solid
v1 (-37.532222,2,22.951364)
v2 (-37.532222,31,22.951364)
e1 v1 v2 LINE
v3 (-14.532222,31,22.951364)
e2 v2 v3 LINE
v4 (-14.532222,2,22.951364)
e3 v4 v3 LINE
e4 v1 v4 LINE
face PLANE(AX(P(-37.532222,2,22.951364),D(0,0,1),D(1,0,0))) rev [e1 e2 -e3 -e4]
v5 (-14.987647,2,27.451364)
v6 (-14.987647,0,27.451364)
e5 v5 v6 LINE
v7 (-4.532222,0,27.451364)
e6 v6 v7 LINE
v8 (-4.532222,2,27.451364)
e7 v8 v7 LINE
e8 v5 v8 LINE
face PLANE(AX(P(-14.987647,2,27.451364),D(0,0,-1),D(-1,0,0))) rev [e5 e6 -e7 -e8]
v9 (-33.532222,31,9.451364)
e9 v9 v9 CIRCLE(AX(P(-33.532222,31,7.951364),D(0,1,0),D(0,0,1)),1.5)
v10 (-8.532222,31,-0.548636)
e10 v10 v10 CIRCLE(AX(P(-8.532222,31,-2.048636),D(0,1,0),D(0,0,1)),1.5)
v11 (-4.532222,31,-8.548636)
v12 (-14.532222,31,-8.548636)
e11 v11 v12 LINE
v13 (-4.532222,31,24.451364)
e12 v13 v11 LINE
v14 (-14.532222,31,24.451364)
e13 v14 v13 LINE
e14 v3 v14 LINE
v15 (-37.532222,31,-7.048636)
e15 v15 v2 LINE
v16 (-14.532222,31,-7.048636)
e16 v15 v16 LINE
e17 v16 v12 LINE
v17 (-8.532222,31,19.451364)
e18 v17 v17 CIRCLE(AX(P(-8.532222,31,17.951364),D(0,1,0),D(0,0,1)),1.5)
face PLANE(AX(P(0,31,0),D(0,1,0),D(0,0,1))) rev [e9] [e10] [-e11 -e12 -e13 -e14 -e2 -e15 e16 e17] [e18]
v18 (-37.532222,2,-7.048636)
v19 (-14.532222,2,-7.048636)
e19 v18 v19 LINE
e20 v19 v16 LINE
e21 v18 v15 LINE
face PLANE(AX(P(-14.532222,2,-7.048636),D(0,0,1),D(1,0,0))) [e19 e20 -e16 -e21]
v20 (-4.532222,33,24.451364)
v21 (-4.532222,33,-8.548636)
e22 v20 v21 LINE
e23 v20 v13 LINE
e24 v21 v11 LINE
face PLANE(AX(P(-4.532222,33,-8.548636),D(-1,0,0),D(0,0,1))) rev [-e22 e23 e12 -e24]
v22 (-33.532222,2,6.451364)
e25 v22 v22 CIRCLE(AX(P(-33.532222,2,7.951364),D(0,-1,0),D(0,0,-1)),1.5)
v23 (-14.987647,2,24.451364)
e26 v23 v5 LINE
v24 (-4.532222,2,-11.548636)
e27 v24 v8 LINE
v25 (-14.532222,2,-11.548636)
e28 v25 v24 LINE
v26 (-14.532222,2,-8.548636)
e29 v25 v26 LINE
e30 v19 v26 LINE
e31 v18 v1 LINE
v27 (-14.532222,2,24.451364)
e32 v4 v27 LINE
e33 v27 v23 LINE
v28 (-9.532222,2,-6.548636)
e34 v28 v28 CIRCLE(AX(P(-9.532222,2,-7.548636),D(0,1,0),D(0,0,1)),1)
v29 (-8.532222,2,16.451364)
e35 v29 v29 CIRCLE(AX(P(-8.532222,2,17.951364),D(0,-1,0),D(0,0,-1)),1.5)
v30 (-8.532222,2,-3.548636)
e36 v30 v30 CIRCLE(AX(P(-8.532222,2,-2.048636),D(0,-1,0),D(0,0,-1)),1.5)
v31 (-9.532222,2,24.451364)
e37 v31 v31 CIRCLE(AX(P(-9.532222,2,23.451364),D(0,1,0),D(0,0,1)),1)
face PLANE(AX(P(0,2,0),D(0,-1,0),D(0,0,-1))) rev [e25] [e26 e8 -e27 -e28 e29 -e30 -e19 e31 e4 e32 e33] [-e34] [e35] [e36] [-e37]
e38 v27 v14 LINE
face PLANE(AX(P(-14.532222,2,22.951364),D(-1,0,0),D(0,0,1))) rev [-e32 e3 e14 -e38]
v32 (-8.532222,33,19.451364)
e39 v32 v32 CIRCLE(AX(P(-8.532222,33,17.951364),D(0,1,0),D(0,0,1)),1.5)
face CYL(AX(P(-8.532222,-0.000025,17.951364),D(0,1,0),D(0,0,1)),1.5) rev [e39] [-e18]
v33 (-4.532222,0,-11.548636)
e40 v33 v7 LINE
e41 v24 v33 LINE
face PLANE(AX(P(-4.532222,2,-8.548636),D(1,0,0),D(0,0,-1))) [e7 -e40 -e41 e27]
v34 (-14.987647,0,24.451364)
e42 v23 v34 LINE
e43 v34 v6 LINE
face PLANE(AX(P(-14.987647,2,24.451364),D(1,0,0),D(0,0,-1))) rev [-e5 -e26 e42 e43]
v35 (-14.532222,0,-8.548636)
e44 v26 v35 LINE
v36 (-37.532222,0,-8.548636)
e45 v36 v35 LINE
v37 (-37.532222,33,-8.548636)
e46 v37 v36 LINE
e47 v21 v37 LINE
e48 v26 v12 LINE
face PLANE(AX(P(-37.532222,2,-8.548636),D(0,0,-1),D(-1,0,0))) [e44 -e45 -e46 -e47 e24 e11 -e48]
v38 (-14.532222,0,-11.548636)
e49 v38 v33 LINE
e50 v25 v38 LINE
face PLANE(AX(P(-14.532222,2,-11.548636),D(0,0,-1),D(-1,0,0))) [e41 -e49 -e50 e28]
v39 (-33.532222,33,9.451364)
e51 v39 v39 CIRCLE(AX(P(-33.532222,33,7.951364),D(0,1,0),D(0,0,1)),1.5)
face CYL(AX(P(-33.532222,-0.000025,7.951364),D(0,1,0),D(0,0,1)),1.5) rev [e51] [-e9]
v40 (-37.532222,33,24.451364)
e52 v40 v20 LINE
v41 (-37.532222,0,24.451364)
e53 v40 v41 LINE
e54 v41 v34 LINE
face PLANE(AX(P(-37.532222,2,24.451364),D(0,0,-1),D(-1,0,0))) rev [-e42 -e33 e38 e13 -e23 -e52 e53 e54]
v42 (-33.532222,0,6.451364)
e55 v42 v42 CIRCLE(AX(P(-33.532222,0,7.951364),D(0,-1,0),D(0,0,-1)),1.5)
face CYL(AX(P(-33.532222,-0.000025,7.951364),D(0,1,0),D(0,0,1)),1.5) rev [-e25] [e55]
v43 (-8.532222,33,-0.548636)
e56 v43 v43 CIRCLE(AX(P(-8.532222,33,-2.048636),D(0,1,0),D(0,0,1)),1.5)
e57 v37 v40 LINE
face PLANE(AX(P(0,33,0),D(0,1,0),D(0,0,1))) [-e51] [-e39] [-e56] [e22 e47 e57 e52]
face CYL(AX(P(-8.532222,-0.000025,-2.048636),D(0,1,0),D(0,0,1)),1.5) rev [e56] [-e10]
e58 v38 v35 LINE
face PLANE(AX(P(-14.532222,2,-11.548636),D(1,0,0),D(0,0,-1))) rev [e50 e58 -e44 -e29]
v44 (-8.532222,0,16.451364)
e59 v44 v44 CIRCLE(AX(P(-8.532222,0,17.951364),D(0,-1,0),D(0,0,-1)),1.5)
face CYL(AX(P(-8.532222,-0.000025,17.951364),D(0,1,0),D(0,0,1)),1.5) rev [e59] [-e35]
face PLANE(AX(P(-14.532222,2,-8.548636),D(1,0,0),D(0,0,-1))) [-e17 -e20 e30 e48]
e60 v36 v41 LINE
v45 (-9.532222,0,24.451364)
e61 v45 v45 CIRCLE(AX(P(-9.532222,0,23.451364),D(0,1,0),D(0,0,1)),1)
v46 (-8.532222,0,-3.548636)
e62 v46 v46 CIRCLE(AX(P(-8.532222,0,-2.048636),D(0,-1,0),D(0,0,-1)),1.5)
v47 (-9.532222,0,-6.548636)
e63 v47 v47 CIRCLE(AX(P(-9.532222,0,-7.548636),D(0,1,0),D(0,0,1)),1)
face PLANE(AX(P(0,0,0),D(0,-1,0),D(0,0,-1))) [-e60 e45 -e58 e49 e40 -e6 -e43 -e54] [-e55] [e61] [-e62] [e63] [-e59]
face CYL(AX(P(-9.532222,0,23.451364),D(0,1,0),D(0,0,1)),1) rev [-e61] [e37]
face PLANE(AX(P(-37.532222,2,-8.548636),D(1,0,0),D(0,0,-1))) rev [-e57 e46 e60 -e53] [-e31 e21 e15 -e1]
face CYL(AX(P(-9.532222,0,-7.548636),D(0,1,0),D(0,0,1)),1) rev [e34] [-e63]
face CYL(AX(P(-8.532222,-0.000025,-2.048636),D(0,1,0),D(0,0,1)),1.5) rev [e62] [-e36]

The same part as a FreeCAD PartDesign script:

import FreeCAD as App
import Part
import Sketcher

V = App.Vector

doc = App.newDocument("Part")
body = doc.addObject("PartDesign::Body", "Body")

# Sketch on XZ plane
sketch1 = body.newObject("Sketcher::SketchObject", "Sketch")
sketch1.AttachmentSupport = (doc.getObject("XZ_Plane"), [""])
sketch1.MapMode = "FlatFace"
sketch1.addGeometry(Part.LineSegment(V(-37.5, 24.5, 0), V(-15, 24.5, 0)), False)
sketch1.addGeometry(Part.LineSegment(V(-15, 24.5, 0), V(-15, 27.5, 0)), False)
sketch1.addGeometry(Part.LineSegment(V(-15, 27.5, 0), V(-4.5, 27.5, 0)), False)
sketch1.addGeometry(Part.LineSegment(V(-4.5, 27.5, 0), V(-4.5, -11.5, 0)), False)
sketch1.addGeometry(Part.LineSegment(V(-4.5, -11.5, 0), V(-14.5, -11.5, 0)), False)
sketch1.addGeometry(Part.LineSegment(V(-14.5, -11.5, 0), V(-14.5, -8.5, 0)), False)
sketch1.addGeometry(Part.LineSegment(V(-14.5, -8.5, 0), V(-37.5, -8.5, 0)), False)
sketch1.addGeometry(Part.LineSegment(V(-37.5, -8.5, 0), V(-37.5, 24.5, 0)), False)
sketch1.addConstraint(Sketcher.Constraint("Coincident", 0, 2, 1, 1))
sketch1.addConstraint(Sketcher.Constraint("Coincident", 1, 2, 2, 1))
sketch1.addConstraint(Sketcher.Constraint("Coincident", 2, 2, 3, 1))
sketch1.addConstraint(Sketcher.Constraint("Coincident", 3, 2, 4, 1))
sketch1.addConstraint(Sketcher.Constraint("Coincident", 4, 2, 5, 1))
sketch1.addConstraint(Sketcher.Constraint("Coincident", 5, 2, 6, 1))
sketch1.addConstraint(Sketcher.Constraint("Coincident", 6, 2, 7, 1))
sketch1.addConstraint(Sketcher.Constraint("Coincident", 7, 2, 0, 1))
sketch1.addConstraint(Sketcher.Constraint("Horizontal", 0))
sketch1.addConstraint(Sketcher.Constraint("Vertical", 1))
sketch1.addConstraint(Sketcher.Constraint("Horizontal", 2))
sketch1.addConstraint(Sketcher.Constraint("Vertical", 3))
sketch1.addConstraint(Sketcher.Constraint("Horizontal", 4))
sketch1.addConstraint(Sketcher.Constraint("Vertical", 5))
sketch1.addConstraint(Sketcher.Constraint("Horizontal", 6))
sketch1.addConstraint(Sketcher.Constraint("Vertical", 7))
sketch1.addConstraint(Sketcher.Constraint("Equal", 1, 5))
sketch1.addConstraint(Sketcher.Constraint("DistanceX", 4, 2, 4, 1, 10.0))
sketch1.addConstraint(Sketcher.Constraint("DistanceX", 6, 2, 6, 1, 23.0))
sketch1.addConstraint(Sketcher.Constraint("DistanceY", 1, 1, 1, 2, 3.0))
sketch1.addConstraint(Sketcher.Constraint("DistanceY", 3, 2, 3, 1, 39.0))
sketch1.addConstraint(Sketcher.Constraint("DistanceX", 0, 1, 0, 2, 22.544575))
sketch1.addConstraint(Sketcher.Constraint("DistanceX", 2, 2, -1, 1, 4.532222))
sketch1.addConstraint(Sketcher.Constraint("DistanceY", -1, 1, 0, 2, 24.451364))
pad1 = body.newObject("PartDesign::Pad", "Pad")
pad1.Profile = sketch1
pad1.Length = 2
pad1.Reversed = True

# Sketch on XZ plane
sketch2 = body.newObject("Sketcher::SketchObject", "Sketch001")
sketch2.AttachmentSupport = (doc.getObject("XZ_Plane"), [""])
sketch2.MapMode = "FlatFace"
sketch2.AttachmentOffset = App.Placement(V(0, 0, -2), App.Rotation())
sketch2.addGeometry(Part.Circle(V(-9.5, -7.5, 0), V(0, 0, 1), 1), False)
sketch2.addGeometry(Part.Circle(V(-9.5, 23.5, 0), V(0, 0, 1), 1), False)
sketch2.addConstraint(Sketcher.Constraint("Equal", 0, 1))
sketch2.addConstraint(Sketcher.Constraint("Vertical", 0, 3, 1, 3))
sketch2.addConstraint(Sketcher.Constraint("Diameter", 0, 2.0))
sketch2.addConstraint(Sketcher.Constraint("DistanceY", 0, 3, 1, 3, 31.0))
sketch2.addConstraint(Sketcher.Constraint("DistanceX", 0, 3, -1, 1, 9.532222))
sketch2.addConstraint(Sketcher.Constraint("DistanceY", 0, 3, -1, 1, 7.548636))
pocket1 = body.newObject("PartDesign::Pocket", "Pocket")
pocket1.Profile = sketch2
pocket1.Type = "ThroughAll"
pocket1.Reversed = True

# Sketch on XZ plane
sketch3 = body.newObject("Sketcher::SketchObject", "Sketch002")
sketch3.AttachmentSupport = (doc.getObject("XZ_Plane"), [""])
sketch3.MapMode = "FlatFace"
sketch3.AttachmentOffset = App.Placement(V(0, 0, -2), App.Rotation())
sketch3.addGeometry(Part.LineSegment(V(-37.5, 24.5, 0), V(-37.5, 23, 0)), False)
sketch3.addGeometry(Part.LineSegment(V(-37.5, 23, 0), V(-14.5, 23, 0)), False)
sketch3.addGeometry(Part.LineSegment(V(-14.5, 23, 0), V(-14.5, 24.5, 0)), False)
sketch3.addGeometry(Part.LineSegment(V(-14.5, 24.5, 0), V(-37.5, 24.5, 0)), False)
sketch3.addGeometry(Part.LineSegment(V(-14.5, -8.5, 0), V(-14.5, -7, 0)), False)
sketch3.addGeometry(Part.LineSegment(V(-14.5, -7, 0), V(-37.5, -7, 0)), False)
sketch3.addGeometry(Part.LineSegment(V(-37.5, -7, 0), V(-37.5, -8.5, 0)), False)
sketch3.addGeometry(Part.LineSegment(V(-37.5, -8.5, 0), V(-14.5, -8.5, 0)), False)
sketch3.addConstraint(Sketcher.Constraint("Coincident", 0, 2, 1, 1))
sketch3.addConstraint(Sketcher.Constraint("Coincident", 1, 2, 2, 1))
sketch3.addConstraint(Sketcher.Constraint("Coincident", 2, 2, 3, 1))
sketch3.addConstraint(Sketcher.Constraint("Coincident", 3, 2, 0, 1))
sketch3.addConstraint(Sketcher.Constraint("Coincident", 4, 2, 5, 1))
sketch3.addConstraint(Sketcher.Constraint("Coincident", 5, 2, 6, 1))
sketch3.addConstraint(Sketcher.Constraint("Coincident", 6, 2, 7, 1))
sketch3.addConstraint(Sketcher.Constraint("Coincident", 7, 2, 4, 1))
sketch3.addConstraint(Sketcher.Constraint("Vertical", 0))
sketch3.addConstraint(Sketcher.Constraint("Horizontal", 1))
sketch3.addConstraint(Sketcher.Constraint("Vertical", 2))
sketch3.addConstraint(Sketcher.Constraint("Horizontal", 3))
sketch3.addConstraint(Sketcher.Constraint("Vertical", 4))
sketch3.addConstraint(Sketcher.Constraint("Horizontal", 5))
sketch3.addConstraint(Sketcher.Constraint("Vertical", 6))
sketch3.addConstraint(Sketcher.Constraint("Horizontal", 7))
sketch3.addConstraint(Sketcher.Constraint("Vertical", 2, 2, 4, 2))
sketch3.addConstraint(Sketcher.Constraint("Vertical", 3, 2, 5, 2))
sketch3.addConstraint(Sketcher.Constraint("Equal", 2, 4))
sketch3.addConstraint(Sketcher.Constraint("DistanceX", 1, 1, 1, 2, 23.0))
sketch3.addConstraint(Sketcher.Constraint("DistanceY", 0, 2, 0, 1, 1.5))
sketch3.addConstraint(Sketcher.Constraint("DistanceY", 4, 2, 1, 2, 30.0))
sketch3.addConstraint(Sketcher.Constraint("DistanceX", 0, 2, -1, 1, 37.532222))
sketch3.addConstraint(Sketcher.Constraint("DistanceY", -1, 1, 0, 2, 22.951364))
pad2 = body.newObject("PartDesign::Pad", "Pad001")
pad2.Profile = sketch3
pad2.Length = 29
pad2.Reversed = True

# Sketch on XZ plane
sketch4 = body.newObject("Sketcher::SketchObject", "Sketch003")
sketch4.AttachmentSupport = (doc.getObject("XZ_Plane"), [""])
sketch4.MapMode = "FlatFace"
sketch4.AttachmentOffset = App.Placement(V(0, 0, -31), App.Rotation())
sketch4.addGeometry(Part.LineSegment(V(-38, -9, 0), V(-38, 24, 0)), False)
sketch4.addGeometry(Part.LineSegment(V(-38, 24, 0), V(-5, 24, 0)), False)
sketch4.addGeometry(Part.LineSegment(V(-5, 24, 0), V(-5, -9, 0)), False)
sketch4.addGeometry(Part.LineSegment(V(-5, -9, 0), V(-38, -9, 0)), False)
sketch4.addConstraint(Sketcher.Constraint("Coincident", 0, 2, 1, 1))
sketch4.addConstraint(Sketcher.Constraint("Coincident", 1, 2, 2, 1))
sketch4.addConstraint(Sketcher.Constraint("Coincident", 2, 2, 3, 1))
sketch4.addConstraint(Sketcher.Constraint("Coincident", 3, 2, 0, 1))
sketch4.addConstraint(Sketcher.Constraint("Vertical", 0))
sketch4.addConstraint(Sketcher.Constraint("Horizontal", 1))
sketch4.addConstraint(Sketcher.Constraint("Vertical", 2))
sketch4.addConstraint(Sketcher.Constraint("Horizontal", 3))
sketch4.addConstraint(Sketcher.Constraint("Equal", 3, 0))
sketch4.addConstraint(Sketcher.Constraint("DistanceX", 1, 1, 1, 2, 33.0))
sketch4.addConstraint(Sketcher.Constraint("DistanceX", 0, 2, -1, 1, 37.532222))
sketch4.addConstraint(Sketcher.Constraint("DistanceY", -1, 1, 0, 2, 24.451364))
pad3 = body.newObject("PartDesign::Pad", "Pad002")
pad3.Profile = sketch4
pad3.Length = 2
pad3.Reversed = True

# Sketch on XZ plane
sketch5 = body.newObject("Sketcher::SketchObject", "Sketch004")
sketch5.AttachmentSupport = (doc.getObject("XZ_Plane"), [""])
sketch5.MapMode = "FlatFace"
sketch5.AttachmentOffset = App.Placement(V(0, 0, -33), App.Rotation())
sketch5.addGeometry(Part.Circle(V(-8.5, 18, 0), V(0, 0, 1), 1.5), False)
sketch5.addGeometry(Part.Circle(V(-8.5, -2, 0), V(0, 0, 1), 1.5), False)
sketch5.addGeometry(Part.Circle(V(-33.5, 8, 0), V(0, 0, 1), 1.5), False)
sketch5.addConstraint(Sketcher.Constraint("Equal", 0, 1))
sketch5.addConstraint(Sketcher.Constraint("Equal", 1, 2))
sketch5.addConstraint(Sketcher.Constraint("Vertical", 0, 3, 1, 3))
sketch5.addConstraint(Sketcher.Constraint("Diameter", 0, 3.0))
sketch5.addConstraint(Sketcher.Constraint("DistanceY", 1, 3, 0, 3, 20.0))
sketch5.addConstraint(Sketcher.Constraint("DistanceX", 2, 3, 0, 3, 25.0))
sketch5.addConstraint(Sketcher.Constraint("DistanceY", 2, 3, 0, 3, 10.0))
sketch5.addConstraint(Sketcher.Constraint("DistanceX", 0, 3, -1, 1, 8.532222))
sketch5.addConstraint(Sketcher.Constraint("DistanceY", -1, 1, 0, 3, 17.951364))
pocket2 = body.newObject("PartDesign::Pocket", "Pocket001")
pocket2.Profile = sketch5
pocket2.Type = "ThroughAll"
pocket2.Reversed = True

doc.recompute()
